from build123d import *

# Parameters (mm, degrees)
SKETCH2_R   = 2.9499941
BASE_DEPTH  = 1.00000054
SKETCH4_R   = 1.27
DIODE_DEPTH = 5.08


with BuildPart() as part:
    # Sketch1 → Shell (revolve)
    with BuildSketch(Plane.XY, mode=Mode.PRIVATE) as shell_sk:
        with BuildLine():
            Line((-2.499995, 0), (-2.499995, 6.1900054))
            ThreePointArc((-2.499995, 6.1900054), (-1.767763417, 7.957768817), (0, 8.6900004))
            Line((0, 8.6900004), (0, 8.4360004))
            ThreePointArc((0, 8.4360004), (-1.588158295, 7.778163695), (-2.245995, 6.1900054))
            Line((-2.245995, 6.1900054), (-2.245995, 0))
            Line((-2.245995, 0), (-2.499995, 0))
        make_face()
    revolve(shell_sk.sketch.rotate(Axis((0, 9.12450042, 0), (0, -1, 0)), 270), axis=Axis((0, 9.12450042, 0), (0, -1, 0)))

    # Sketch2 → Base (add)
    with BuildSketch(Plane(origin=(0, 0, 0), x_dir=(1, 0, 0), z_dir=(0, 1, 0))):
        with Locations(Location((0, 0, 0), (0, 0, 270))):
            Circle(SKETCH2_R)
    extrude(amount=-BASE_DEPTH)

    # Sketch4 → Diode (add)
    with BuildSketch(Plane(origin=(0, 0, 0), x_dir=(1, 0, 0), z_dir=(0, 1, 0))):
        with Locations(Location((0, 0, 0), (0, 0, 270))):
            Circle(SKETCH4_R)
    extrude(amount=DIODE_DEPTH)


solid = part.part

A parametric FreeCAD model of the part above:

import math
import FreeCAD as App
import Part
import Sketcher

V = App.Vector
Q = App.Units.Quantity

doc = App.newDocument("Part")
params = doc.addObject("Spreadsheet::Sheet", "Params")
for row, (alias, value) in enumerate([
    ("sketch1_width", "0.01 in"),
    ("revolution_angle", "360 deg"),
    ("pad1_length", "1.000001 mm"),
    ("sketch3_diameter", "0.1 in"),
    ("pad2_length", "0.2 in"),
], start=1):
    params.set(f"A{row}", alias)
    params.set(f"B{row}", "=" + value)
    params.setAlias(f"B{row}", alias)

body = doc.addObject("PartDesign::Body", "Body")

# Sketch on XY plane
sketch1 = body.newObject("Sketcher::SketchObject", "Sketch")
sketch1.AttachmentSupport = (doc.getObject("XY_Plane"), [""])
sketch1.MapMode = "FlatFace"
sketch1.addGeometry(Part.LineSegment(V(-2.5, 6.19, 0), V(-2.5, 0, 0)), False)
sketch1.addGeometry(Part.LineSegment(V(-2.5, 0, 0), V(-2.25, 0, 0)), False)
sketch1.addGeometry(Part.LineSegment(V(-2.25, 0, 0), V(-2.25, 6.19, 0)), False)
sketch1.addGeometry(Part.ArcOfCircle(Part.Circle(V(0, 6.19, 0), V(0, 0, 1), 2.25), math.radians(90), math.radians(180)), False)
sketch1.addGeometry(Part.LineSegment(V(0, 8.44, 0), V(0, 8.69, 0)), False)
sketch1.addGeometry(Part.ArcOfCircle(Part.Circle(V(0, 6.19, 0), V(0, 0, 1), 2.5), math.radians(90), math.radians(180)), False)
sketch1.addConstraint(Sketcher.Constraint("Coincident", 0, 2, 1, 1))
sketch1.addConstraint(Sketcher.Constraint("Coincident", 1, 2, 2, 1))
sketch1.addConstraint(Sketcher.Constraint("Tangent", 2, 2, 3, 2))
sketch1.addConstraint(Sketcher.Constraint("Coincident", 3, 1, 4, 1))
sketch1.addConstraint(Sketcher.Constraint("Coincident", 4, 2, 5, 1))
sketch1.addConstraint(Sketcher.Constraint("Tangent", 5, 2, 0, 1))
sketch1.addConstraint(Sketcher.Constraint("Vertical", 0))
sketch1.addConstraint(Sketcher.Constraint("Horizontal", 1))
sketch1.addConstraint(Sketcher.Constraint("Vertical", 2))
sketch1.addConstraint(Sketcher.Constraint("Vertical", 4))
sketch1.addConstraint(Sketcher.Constraint("Coincident", 5, 3, 3, 3))
sketch1.addConstraint(Sketcher.Constraint("PointOnObject", 3, 3, -2))
sketch1.addConstraint(Sketcher.Constraint("PointOnObject", 0, 2, -1))
sketch1.addConstraint(Sketcher.Constraint("PointOnObject", 3, 1, -2))
sketch1.addConstraint(Sketcher.Constraint("DistanceX", 1, 1, 1, 2, Q("0.01 in")))
sketch1.addConstraint(Sketcher.Constraint("Radius", 3, Q("2.245995 mm")))
sketch1.addConstraint(Sketcher.Constraint("DistanceY", -1, 1, 3, 1, Q("8.436 mm")))
sketch1.setExpression("Constraints[14]", "Params.sketch1_width")
revolution = body.newObject("PartDesign::Revolution", "Revolution")
revolution.Profile = sketch1
revolution.ReferenceAxis = (sketch1, ["V_Axis"])
revolution.setExpression("Angle", "Params.revolution_angle")

# Sketch on XZ plane
sketch2 = body.newObject("Sketcher::SketchObject", "Sketch001")
sketch2.AttachmentSupport = (doc.getObject("XZ_Plane"), [""])
sketch2.MapMode = "FlatFace"
sketch2.addGeometry(Part.Circle(V(0, 0, 0), V(0, 0, 1), 2.9), False)
sketch2.addConstraint(Sketcher.Constraint("Coincident", 0, 3, -1, 1))
sketch2.addConstraint(Sketcher.Constraint("Diameter", 0, Q("5.899988 mm")))
pad1 = body.newObject("PartDesign::Pad", "Pad")
pad1.Profile = sketch2
pad1.setExpression("Length", "Params.pad1_length")

# Sketch on XZ plane
sketch3 = body.newObject("Sketcher::SketchObject", "Sketch002")
sketch3.AttachmentSupport = (doc.getObject("XZ_Plane"), [""])
sketch3.MapMode = "FlatFace"
sketch3.addGeometry(Part.Circle(V(0, 0, 0), V(0, 0, 1), 1.3), False)
sketch3.addConstraint(Sketcher.Constraint("Coincident", 0, 3, -1, 1))
sketch3.addConstraint(Sketcher.Constraint("Diameter", 0, Q("0.1 in")))
sketch3.setExpression("Constraints[1]", "Params.sketch3_diameter")
pad2 = body.newObject("PartDesign::Pad", "Pad001")
pad2.Profile = sketch3
pad2.setExpression("Length", "Params.pad2_length")
pad2.Reversed = True

doc.recompute()
